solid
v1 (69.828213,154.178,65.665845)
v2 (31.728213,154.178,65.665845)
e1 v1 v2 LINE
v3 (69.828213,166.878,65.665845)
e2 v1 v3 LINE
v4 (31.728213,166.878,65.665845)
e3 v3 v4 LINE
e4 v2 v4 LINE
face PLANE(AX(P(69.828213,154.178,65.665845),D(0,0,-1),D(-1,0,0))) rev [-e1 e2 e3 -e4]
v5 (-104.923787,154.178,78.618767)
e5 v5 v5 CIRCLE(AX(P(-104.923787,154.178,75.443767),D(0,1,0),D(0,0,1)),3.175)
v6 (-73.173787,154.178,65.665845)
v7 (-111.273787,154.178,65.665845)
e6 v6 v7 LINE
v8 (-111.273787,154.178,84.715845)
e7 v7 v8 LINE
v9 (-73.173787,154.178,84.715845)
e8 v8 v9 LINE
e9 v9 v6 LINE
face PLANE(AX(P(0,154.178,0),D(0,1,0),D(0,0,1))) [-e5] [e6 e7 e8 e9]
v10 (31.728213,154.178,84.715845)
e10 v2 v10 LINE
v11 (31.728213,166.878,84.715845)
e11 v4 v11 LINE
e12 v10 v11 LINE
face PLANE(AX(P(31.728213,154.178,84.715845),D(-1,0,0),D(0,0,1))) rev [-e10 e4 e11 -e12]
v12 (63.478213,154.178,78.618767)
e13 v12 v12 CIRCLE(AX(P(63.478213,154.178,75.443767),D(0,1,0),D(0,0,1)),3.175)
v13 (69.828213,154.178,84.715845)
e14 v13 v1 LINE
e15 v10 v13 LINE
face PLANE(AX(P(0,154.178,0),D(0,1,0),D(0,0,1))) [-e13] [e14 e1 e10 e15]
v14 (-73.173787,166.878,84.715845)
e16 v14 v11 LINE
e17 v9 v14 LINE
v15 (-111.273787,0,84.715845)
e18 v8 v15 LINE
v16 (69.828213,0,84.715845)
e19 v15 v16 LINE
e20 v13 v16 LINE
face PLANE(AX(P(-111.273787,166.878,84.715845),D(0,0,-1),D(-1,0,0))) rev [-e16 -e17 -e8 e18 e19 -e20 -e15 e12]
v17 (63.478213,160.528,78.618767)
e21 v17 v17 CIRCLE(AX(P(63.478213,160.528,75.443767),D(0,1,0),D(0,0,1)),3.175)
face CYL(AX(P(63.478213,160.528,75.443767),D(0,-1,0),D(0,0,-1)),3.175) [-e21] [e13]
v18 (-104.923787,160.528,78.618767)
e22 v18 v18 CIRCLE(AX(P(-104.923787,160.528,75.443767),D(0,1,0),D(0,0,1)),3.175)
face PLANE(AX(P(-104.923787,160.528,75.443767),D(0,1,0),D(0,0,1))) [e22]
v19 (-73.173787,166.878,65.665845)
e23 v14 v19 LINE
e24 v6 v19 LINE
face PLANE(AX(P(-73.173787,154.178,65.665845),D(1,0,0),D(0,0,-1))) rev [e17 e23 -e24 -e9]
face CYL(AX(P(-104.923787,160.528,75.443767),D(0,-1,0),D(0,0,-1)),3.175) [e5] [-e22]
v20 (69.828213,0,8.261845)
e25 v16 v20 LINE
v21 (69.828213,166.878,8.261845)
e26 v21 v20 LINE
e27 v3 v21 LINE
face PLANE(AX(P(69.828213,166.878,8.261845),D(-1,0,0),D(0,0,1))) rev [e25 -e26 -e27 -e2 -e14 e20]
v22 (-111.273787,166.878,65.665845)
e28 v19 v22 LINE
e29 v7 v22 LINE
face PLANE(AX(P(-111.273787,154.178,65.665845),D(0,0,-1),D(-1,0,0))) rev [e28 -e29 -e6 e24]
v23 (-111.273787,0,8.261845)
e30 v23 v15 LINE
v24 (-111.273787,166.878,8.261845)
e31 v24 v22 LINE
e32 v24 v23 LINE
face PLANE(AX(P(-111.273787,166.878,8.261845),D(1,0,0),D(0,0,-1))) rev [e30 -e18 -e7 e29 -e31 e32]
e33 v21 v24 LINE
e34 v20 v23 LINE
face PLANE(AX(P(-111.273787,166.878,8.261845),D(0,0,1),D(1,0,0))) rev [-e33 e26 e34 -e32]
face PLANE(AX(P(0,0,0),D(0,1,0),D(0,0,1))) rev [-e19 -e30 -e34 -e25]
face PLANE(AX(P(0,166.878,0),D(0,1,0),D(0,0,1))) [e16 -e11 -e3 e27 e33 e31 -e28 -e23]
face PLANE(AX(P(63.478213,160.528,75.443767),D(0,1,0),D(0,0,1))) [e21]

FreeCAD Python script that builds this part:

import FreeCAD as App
import Part
import Sketcher

V = App.Vector
Q = App.Units.Quantity


def add_polygon(sketch, points):
    """Adds a closed chain of lines whose ends are joined by coincident constraints."""
    first, n = sketch.GeometryCount, len(points)
    for a, b in zip(points, points[1:] + points[:1]):
        sketch.addGeometry(Part.LineSegment(App.Vector(*a, 0), App.Vector(*b, 0)), False)
    for i in range(n):
        sketch.addConstraint(Sketcher.Constraint("Coincident", first + i, 2, first + (i + 1) % n, 1))

doc = App.newDocument("Part")
body = doc.addObject("PartDesign::Body", "Body")

# Sketch on XZ plane
sketch1 = body.newObject("Sketcher::SketchObject", "Sketch")
sketch1.AttachmentSupport = (doc.getObject("XZ_Plane"), [""])
sketch1.MapMode = "FlatFace"
add_polygon(sketch1, [(-111.273787, 8.261845), (-111.273787, 84.715845), (69.828213, 84.715845), (69.828213, 8.261845)])  # lines 0-3
sketch1.addConstraint([
    Sketcher.Constraint("Vertical", 0),
    Sketcher.Constraint("Horizontal", 1),
    Sketcher.Constraint("Vertical", 2),
    Sketcher.Constraint("Horizontal", 3),
    Sketcher.Constraint("DistanceX", 1, 1, 1, 2, Q("7.13 in")),
    Sketcher.Constraint("DistanceY", 0, 1, 0, 2, Q("3.01 in")),
    Sketcher.Constraint("DistanceX", 0, 2, -1, 1, 111.273787),
    Sketcher.Constraint("DistanceY", -1, 1, 0, 2, 84.715845),
])
pad1 = body.newObject("PartDesign::Pad", "Pad")
pad1.Profile = sketch1
pad1.Length = Q("6.57 in")
pad1.Reversed = True

# Sketch on XZ plane
sketch2 = body.newObject("Sketcher::SketchObject", "Sketch001")
sketch2.AttachmentSupport = (doc.getObject("XZ_Plane"), [""])
sketch2.MapMode = "FlatFace"
sketch2.AttachmentOffset = App.Placement(V(0, 0, -6.57 * 25.4), App.Rotation())
add_polygon(sketch2, [(-111.273787, 65.665845), (-111.273787, 84.715845), (-73.173787, 84.715845), (-73.173787, 65.665845)])  # lines 0-3
add_polygon(sketch2, [(31.728213, 65.665845), (31.728213, 84.715845), (69.828213, 84.715845), (69.828213, 65.665845)])  # lines 4-7
sketch2.addConstraint([
    Sketcher.Constraint("Vertical", 0),
    Sketcher.Constraint("Horizontal", 1),
    Sketcher.Constraint("Vertical", 2),
    Sketcher.Constraint("Horizontal", 3),
    Sketcher.Constraint("Vertical", 4),
    Sketcher.Constraint("Horizontal", 5),
    Sketcher.Constraint("Vertical", 6),
    Sketcher.Constraint("Horizontal", 7),
    Sketcher.Constraint("Horizontal", 1, 2, 4, 2),
    Sketcher.Constraint("Horizontal", 3, 2, 6, 2),
    Sketcher.Constraint("Equal", 3, 5),
    Sketcher.Constraint("DistanceX", 1, 1, 1, 2, Q("1.5 in")),
    Sketcher.Constraint("DistanceY", 0, 1, 0, 2, Q("0.75 in")),
    Sketcher.Constraint("DistanceX", 1, 2, 4, 2, Q("4.13 in")),
    Sketcher.Constraint("DistanceX", 0, 2, -1, 1, 111.273787),
    Sketcher.Constraint("DistanceY", -1, 1, 0, 2, 84.715845),
])
pocket1 = body.newObject("PartDesign::Pocket", "Pocket")
pocket1.Profile = sketch2
pocket1.Length = Q("0.5 in")
pocket1.Reversed = True

# Sketch on XZ plane
sketch3 = body.newObject("Sketcher::SketchObject", "Sketch002")
sketch3.AttachmentSupport = (doc.getObject("XZ_Plane"), [""])
sketch3.MapMode = "FlatFace"
sketch3.AttachmentOffset = App.Placement(V(0, 0, -6.07 * 25.4), App.Rotation())
sketch3.addGeometry([
    Part.Circle(V(63.478213, 75.443767, 0), V(0, 0, 1), 3.175),
    Part.Circle(V(-104.923787, 75.443767, 0), V(0, 0, 1), 3.175),
], False)
sketch3.addConstraint([
    Sketcher.Constraint("Equal", 0, 1),
    Sketcher.Constraint("Horizontal", 0, 3, 1, 3),
    Sketcher.Constraint("Diameter", 0, Q("0.25 in")),
    Sketcher.Constraint("DistanceX", 1, 3, 0, 3, Q("6.63 in")),
    Sketcher.Constraint("DistanceX", -1, 1, 0, 3, 63.478213),
    Sketcher.Constraint("DistanceY", -1, 1, 0, 3, 75.443767),
])
pad2 = body.newObject("PartDesign::Pad", "Pad001")
pad2.Profile = sketch3
pad2.Length = Q("0.25 in")
pad2.Reversed = True

doc.recompute()
